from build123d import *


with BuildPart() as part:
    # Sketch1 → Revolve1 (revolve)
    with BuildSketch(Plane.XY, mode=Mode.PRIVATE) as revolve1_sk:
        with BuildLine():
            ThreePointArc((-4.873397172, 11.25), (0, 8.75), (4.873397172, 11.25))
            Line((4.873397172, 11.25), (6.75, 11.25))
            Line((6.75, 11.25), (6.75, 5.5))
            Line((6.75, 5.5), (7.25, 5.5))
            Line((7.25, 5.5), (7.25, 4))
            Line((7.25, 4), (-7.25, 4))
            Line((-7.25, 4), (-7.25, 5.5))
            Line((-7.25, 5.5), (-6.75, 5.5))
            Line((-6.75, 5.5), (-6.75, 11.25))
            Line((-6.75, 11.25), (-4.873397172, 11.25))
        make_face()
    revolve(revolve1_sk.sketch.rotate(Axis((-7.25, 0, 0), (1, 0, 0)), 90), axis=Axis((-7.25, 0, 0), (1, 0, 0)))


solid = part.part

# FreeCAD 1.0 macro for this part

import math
import FreeCAD as App
import Part
import Sketcher
from FreeCAD import Vector
Q = App.Units.Quantity

doc = App.newDocument("Part")
params = doc.addObject("Spreadsheet::Sheet", "Params")
for row, (alias, value) in enumerate([
    ("sketch1_radius", "6 mm"),
    ("sketch1_width", "0.5 mm"),
    ("sketch1_width2", "14.5 mm"),
    ("sketch1_height", "1.5 mm"),
    ("sketch1_height2", "5.75 mm"),
    ("revolution_angle", "360 deg"),
], start=1):
    params.set(f"A{row}", alias)
    params.set(f"B{row}", "=" + value)
    params.setAlias(f"B{row}", alias)

body = doc.addObject("PartDesign::Body", "Body")

sketch1 = doc.addObject("Sketcher::SketchObject", "Sketch")
body.addObject(sketch1)
sketch1.AttachmentSupport = (doc.XY_Plane, [""])
sketch1.MapMode = "FlatFace"
sketch1.addGeometry([
    Part.ArcOfCircle(Part.Circle(Vector(0, 14.7, 0), Vector(0, 0, 1), 6), math.radians(-144), math.radians(-36)),
    Part.LineSegment(Vector(-4.9, 11.2, 0), Vector(-6.8, 11.2, 0)),
    Part.LineSegment(Vector(-6.8, 11.2, 0), Vector(-6.8, 5.5, 0)),
    Part.LineSegment(Vector(-6.8, 5.5, 0), Vector(-7.2, 5.5, 0)),
    Part.LineSegment(Vector(-7.2, 5.5, 0), Vector(-7.2, 4, 0)),
    Part.LineSegment(Vector(-7.2, 4, 0), Vector(7.2, 4, 0)),
    Part.LineSegment(Vector(7.2, 4, 0), Vector(7.2, 5.5, 0)),
    Part.LineSegment(Vector(7.2, 5.5, 0), Vector(6.8, 5.5, 0)),
    Part.LineSegment(Vector(6.8, 5.5, 0), Vector(6.8, 11.2, 0)),
    Part.LineSegment(Vector(6.8, 11.2, 0), Vector(4.9, 11.2, 0)),
], False)
sketch1.addConstraint([
    Sketcher.Constraint("Coincident", 0, 1, 1, 1),
    Sketcher.Constraint("Coincident", 1, 2, 2, 1),
    Sketcher.Constraint("Coincident", 2, 2, 3, 1),
    Sketcher.Constraint("Coincident", 3, 2, 4, 1),
    Sketcher.Constraint("Coincident", 4, 2, 5, 1),
    Sketcher.Constraint("Coincident", 5, 2, 6, 1),
    Sketcher.Constraint("Coincident", 6, 2, 7, 1),
    Sketcher.Constraint("Coincident", 7, 2, 8, 1),
    Sketcher.Constraint("Coincident", 8, 2, 9, 1),
    Sketcher.Constraint("Coincident", 9, 2, 0, 2),
    Sketcher.Constraint("Horizontal", 1),
    Sketcher.Constraint("Vertical", 2),
    Sketcher.Constraint("Horizontal", 3),
    Sketcher.Constraint("Vertical", 4),
    Sketcher.Constraint("Horizontal", 5),
    Sketcher.Constraint("Vertical", 6),
    Sketcher.Constraint("Horizontal", 7),
    Sketcher.Constraint("Vertical", 8),
    Sketcher.Constraint("Horizontal", 9),
    Sketcher.Constraint("Symmetric", 3, 2, 6, 2, -2),
    Sketcher.Constraint("Symmetric", 1, 2, 8, 2, -2),
    Sketcher.Constraint("PointOnObject", 0, 3, -2),
    Sketcher.Constraint("Radius", 0, Q("6 mm")),
    Sketcher.Constraint("DistanceX", 3, 2, 3, 1, Q("0.5 mm")),
    Sketcher.Constraint("DistanceX", 5, 1, 5, 2, Q("14.5 mm")),
    Sketcher.Constraint("DistanceY", 4, 2, 4, 1, Q("1.5 mm")),
    Sketcher.Constraint("DistanceY", -1, 1, 4, 2, Q("4 mm")),
    Sketcher.Constraint("DistanceY", 2, 2, 2, 1, Q("5.75 mm")),
    Sketcher.Constraint("DistanceY", 0, 1, 0, 3, Q("3.5 mm")),
])
sketch1.setExpression("Constraints[22]", "Params.sketch1_radius")
sketch1.setExpression("Constraints[23]", "Params.sketch1_width")
sketch1.setExpression("Constraints[24]", "Params.sketch1_width2")
sketch1.setExpression("Constraints[25]", "Params.sketch1_height")
sketch1.setExpression("Constraints[27]", "Params.sketch1_height2")
revolution = doc.addObject("PartDesign::Revolution", "Revolution")
body.addObject(revolution)
revolution.Profile = sketch1
revolution.ReferenceAxis = (sketch1, ["H_Axis"])
revolution.setExpression("Angle", "Params.revolution_angle")

doc.recompute()
